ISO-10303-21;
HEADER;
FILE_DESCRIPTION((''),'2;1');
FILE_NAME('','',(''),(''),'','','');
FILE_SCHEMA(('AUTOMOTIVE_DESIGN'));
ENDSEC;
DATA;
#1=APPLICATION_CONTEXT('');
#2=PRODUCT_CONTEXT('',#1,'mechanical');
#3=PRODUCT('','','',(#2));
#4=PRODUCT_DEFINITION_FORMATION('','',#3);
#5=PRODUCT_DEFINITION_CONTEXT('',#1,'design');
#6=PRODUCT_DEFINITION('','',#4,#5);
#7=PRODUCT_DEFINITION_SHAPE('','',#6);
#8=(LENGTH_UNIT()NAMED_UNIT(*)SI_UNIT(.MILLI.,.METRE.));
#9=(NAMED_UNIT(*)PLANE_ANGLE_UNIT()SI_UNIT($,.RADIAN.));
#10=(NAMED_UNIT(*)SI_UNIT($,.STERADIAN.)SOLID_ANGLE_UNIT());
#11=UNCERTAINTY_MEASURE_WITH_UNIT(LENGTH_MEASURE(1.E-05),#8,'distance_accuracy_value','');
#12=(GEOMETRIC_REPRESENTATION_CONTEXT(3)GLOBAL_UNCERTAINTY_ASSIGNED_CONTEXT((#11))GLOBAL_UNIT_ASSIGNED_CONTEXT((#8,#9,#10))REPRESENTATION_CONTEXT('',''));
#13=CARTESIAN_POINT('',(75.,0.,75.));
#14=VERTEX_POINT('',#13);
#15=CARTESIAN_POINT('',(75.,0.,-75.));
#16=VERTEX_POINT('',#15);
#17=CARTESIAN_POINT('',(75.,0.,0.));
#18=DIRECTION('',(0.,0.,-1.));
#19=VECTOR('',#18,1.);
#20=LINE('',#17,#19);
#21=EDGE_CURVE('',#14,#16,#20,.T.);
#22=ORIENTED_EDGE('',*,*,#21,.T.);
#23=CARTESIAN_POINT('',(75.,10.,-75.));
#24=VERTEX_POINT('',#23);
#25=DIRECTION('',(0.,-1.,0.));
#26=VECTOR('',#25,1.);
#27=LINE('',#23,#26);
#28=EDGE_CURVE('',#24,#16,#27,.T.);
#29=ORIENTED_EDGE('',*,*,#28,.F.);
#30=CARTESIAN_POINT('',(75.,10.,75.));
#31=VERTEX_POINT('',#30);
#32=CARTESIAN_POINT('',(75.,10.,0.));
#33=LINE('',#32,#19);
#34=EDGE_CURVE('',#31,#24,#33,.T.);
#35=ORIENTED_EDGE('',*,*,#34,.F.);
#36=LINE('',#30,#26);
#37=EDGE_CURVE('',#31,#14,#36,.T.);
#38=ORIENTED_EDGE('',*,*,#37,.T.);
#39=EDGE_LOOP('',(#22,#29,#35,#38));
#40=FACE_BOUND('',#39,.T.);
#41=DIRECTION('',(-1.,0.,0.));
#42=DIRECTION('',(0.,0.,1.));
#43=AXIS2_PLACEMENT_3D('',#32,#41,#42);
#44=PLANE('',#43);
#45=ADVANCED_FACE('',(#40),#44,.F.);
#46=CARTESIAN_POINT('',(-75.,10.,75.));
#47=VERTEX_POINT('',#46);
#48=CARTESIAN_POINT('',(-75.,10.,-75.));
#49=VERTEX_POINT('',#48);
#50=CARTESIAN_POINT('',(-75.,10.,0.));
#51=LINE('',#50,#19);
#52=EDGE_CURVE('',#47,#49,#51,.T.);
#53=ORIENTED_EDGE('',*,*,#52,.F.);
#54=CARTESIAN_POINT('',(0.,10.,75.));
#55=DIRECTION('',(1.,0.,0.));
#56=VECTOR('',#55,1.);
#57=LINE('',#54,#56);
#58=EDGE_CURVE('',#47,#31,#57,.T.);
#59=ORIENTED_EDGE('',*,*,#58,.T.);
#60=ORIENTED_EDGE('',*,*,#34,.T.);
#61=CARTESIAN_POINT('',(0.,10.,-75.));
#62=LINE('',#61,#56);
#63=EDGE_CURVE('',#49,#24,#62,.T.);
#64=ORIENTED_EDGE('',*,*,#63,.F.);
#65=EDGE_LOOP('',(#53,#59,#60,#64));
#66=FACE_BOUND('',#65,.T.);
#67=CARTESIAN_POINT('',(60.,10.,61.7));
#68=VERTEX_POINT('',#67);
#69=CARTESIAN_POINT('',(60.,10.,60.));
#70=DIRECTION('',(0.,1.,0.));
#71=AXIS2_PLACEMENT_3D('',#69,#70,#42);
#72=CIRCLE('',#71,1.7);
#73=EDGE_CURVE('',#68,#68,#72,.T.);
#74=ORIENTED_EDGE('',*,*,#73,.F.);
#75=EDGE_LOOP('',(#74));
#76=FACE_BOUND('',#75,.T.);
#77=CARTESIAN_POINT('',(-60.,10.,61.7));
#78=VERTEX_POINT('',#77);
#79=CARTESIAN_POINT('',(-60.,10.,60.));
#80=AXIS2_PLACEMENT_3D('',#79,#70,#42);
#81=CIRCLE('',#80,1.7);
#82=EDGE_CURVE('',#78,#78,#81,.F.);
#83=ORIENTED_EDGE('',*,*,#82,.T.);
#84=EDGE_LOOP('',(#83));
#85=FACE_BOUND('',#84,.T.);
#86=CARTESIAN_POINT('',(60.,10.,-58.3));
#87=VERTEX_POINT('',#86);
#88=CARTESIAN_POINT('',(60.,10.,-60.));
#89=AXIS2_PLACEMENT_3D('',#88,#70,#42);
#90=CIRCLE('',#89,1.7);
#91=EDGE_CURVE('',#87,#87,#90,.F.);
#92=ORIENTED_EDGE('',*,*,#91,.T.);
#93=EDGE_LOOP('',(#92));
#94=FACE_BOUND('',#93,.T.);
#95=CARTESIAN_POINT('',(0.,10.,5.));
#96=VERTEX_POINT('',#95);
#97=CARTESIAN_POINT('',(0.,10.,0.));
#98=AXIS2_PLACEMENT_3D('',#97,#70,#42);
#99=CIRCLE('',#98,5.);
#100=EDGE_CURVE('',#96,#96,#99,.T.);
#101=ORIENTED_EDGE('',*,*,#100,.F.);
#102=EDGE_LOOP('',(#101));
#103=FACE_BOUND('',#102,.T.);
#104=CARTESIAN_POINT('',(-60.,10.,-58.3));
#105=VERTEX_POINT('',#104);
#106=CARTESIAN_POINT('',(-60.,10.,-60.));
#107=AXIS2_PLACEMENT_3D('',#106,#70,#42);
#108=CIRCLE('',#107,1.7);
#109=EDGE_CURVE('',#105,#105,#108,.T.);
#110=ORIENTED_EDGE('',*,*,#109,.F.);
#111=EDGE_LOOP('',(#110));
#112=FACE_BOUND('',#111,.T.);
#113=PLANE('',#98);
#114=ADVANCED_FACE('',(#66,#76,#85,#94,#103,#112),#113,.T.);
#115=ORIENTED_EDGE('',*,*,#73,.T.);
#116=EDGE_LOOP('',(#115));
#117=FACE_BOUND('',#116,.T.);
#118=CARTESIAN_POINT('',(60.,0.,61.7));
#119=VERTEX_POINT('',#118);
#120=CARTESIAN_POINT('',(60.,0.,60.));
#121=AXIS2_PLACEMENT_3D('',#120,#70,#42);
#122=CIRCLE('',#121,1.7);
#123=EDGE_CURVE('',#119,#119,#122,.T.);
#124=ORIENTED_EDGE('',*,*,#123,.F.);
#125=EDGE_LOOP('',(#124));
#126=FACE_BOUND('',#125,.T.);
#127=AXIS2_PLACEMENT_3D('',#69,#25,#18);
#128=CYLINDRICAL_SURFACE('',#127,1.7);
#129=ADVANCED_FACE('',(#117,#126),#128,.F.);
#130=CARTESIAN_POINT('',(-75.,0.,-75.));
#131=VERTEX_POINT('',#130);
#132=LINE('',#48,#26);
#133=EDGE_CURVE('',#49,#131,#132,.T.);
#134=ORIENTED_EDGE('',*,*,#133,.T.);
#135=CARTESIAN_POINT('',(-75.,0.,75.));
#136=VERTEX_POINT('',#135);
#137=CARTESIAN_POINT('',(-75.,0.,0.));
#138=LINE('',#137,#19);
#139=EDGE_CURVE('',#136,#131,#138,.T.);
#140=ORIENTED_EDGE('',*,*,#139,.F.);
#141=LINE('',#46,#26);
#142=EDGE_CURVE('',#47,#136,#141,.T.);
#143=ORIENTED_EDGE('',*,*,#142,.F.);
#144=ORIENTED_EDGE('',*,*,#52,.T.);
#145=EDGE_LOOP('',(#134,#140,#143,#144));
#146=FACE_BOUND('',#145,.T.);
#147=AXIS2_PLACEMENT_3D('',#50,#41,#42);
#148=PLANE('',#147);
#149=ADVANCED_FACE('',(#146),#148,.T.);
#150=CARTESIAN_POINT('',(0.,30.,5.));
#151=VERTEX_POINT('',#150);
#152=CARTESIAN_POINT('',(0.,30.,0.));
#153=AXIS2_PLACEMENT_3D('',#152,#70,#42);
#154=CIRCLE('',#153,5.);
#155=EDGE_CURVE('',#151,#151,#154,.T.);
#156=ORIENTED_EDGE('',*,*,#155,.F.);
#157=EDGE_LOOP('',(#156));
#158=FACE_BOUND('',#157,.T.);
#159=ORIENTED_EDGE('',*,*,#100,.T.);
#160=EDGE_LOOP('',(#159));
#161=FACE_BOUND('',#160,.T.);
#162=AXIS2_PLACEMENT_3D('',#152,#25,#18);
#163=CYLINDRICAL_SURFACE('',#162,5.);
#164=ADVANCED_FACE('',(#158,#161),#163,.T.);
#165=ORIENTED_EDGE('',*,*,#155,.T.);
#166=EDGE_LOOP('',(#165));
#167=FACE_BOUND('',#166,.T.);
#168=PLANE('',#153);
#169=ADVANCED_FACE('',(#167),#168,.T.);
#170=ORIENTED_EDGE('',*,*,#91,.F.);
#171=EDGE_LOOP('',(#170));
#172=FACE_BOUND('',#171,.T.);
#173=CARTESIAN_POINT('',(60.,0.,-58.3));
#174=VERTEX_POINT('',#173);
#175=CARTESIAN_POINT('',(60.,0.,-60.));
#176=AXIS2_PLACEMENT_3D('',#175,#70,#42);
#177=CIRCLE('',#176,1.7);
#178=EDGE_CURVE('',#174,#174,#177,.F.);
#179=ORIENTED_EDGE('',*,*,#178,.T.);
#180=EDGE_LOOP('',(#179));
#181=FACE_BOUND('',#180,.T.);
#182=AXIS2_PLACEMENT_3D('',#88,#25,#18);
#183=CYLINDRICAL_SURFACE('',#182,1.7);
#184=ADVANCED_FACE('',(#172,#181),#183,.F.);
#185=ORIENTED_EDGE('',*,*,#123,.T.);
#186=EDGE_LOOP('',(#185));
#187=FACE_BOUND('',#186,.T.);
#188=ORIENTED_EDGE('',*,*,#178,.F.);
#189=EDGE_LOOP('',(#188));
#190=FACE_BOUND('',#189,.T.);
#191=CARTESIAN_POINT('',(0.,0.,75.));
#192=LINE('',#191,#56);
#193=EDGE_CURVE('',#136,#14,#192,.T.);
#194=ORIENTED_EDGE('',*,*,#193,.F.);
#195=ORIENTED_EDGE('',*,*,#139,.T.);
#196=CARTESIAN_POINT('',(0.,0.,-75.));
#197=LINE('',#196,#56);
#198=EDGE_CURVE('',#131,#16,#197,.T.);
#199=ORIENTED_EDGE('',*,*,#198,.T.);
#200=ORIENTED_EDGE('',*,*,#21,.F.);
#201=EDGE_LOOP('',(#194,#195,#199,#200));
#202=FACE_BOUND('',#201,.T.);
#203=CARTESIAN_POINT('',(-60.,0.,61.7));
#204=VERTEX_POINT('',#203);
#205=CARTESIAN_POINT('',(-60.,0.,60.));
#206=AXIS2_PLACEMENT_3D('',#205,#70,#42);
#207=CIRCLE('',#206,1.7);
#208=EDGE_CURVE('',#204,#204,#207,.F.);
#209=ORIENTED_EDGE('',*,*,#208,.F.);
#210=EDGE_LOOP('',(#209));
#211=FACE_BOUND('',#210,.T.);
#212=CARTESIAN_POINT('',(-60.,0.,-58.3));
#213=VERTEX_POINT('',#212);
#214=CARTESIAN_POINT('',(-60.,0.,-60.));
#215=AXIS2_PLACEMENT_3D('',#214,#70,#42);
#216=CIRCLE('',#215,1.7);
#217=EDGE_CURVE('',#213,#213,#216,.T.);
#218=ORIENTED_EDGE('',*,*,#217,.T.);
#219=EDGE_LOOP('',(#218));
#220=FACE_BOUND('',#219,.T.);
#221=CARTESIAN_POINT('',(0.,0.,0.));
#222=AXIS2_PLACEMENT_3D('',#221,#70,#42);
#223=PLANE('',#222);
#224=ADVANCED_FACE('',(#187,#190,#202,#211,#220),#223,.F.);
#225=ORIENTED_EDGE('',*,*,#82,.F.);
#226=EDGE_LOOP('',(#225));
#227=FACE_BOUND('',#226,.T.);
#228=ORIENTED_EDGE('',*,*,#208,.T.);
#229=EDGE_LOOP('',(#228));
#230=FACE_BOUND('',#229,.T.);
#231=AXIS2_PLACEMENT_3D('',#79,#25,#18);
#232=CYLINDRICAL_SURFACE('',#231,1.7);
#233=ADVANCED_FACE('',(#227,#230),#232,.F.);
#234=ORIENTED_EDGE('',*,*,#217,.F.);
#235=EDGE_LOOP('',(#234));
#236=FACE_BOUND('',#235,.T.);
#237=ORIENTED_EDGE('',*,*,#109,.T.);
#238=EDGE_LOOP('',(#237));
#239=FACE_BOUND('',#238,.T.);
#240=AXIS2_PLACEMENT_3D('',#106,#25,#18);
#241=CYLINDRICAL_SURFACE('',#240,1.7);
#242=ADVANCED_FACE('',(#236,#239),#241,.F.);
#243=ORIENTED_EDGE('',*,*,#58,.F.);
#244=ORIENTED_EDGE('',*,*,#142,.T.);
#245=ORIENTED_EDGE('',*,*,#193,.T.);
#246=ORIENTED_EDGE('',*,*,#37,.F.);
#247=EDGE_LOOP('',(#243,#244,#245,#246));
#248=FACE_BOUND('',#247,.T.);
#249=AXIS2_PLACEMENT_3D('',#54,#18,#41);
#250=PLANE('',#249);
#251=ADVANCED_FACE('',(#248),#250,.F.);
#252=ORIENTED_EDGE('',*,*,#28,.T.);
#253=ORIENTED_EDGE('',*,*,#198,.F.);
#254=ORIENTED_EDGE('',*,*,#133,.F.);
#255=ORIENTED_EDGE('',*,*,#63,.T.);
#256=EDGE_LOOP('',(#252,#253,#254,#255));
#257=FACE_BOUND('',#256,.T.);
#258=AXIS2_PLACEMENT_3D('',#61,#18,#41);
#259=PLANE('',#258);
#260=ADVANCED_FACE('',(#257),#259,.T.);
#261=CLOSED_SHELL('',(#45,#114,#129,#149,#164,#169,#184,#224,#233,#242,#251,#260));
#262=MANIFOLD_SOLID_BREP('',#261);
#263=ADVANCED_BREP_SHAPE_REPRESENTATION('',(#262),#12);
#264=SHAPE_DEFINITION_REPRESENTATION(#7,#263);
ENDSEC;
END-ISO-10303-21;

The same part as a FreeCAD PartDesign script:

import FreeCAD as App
import Part
import Sketcher
from FreeCAD import Vector
Q = App.Units.Quantity


def add_polygon(sketch, points):
    """Adds a closed chain of lines whose ends are joined by coincident constraints."""
    first, n = sketch.GeometryCount, len(points)
    for a, b in zip(points, points[1:] + points[:1]):
        sketch.addGeometry(Part.LineSegment(App.Vector(*a, 0), App.Vector(*b, 0)), False)
    for i in range(n):
        sketch.addConstraint(Sketcher.Constraint("Coincident", first + i, 2, first + (i + 1) % n, 1))

doc = App.newDocument("Part")
body = doc.addObject("PartDesign::Body", "Body")

# Sketch on XZ plane
sketch1 = body.newObject("Sketcher::SketchObject", "Sketch")
sketch1.AttachmentSupport = (doc.getObject("XZ_Plane"), [""])
sketch1.MapMode = "FlatFace"
add_polygon(sketch1, [(-75, -75), (-75, 75), (75, 75), (75, -75)])  # lines 0-3
sketch1.addGeometry(Part.Circle(Vector(-60, 60, 0), Vector(0, 0, 1), 1.7), False)  # 4
sketch1.addGeometry(Part.Circle(Vector(60, 60, 0), Vector(0, 0, 1), 1.7), False)  # 5
sketch1.addGeometry(Part.Circle(Vector(-60, -60, 0), Vector(0, 0, 1), 1.7), False)  # 6
sketch1.addGeometry(Part.Circle(Vector(0, 0, 0), Vector(0, 0, 1), 5), False)  # 7
sketch1.addGeometry(Part.Circle(Vector(60, -60, 0), Vector(0, 0, 1), 1.7), False)  # 8
sketch1.addConstraint(Sketcher.Constraint("Vertical", 0))
sketch1.addConstraint(Sketcher.Constraint("Horizontal", 1))
sketch1.addConstraint(Sketcher.Constraint("Vertical", 2))
sketch1.addConstraint(Sketcher.Constraint("Horizontal", 3))
sketch1.addConstraint(Sketcher.Constraint("Coincident", 7, 3, -1, 1))
sketch1.addConstraint(Sketcher.Constraint("Equal", 4, 5))
sketch1.addConstraint(Sketcher.Constraint("Equal", 5, 6))
sketch1.addConstraint(Sketcher.Constraint("Equal", 6, 8))
sketch1.addConstraint(Sketcher.Constraint("Symmetric", 5, 3, 6, 3, -1, 1))
sketch1.addConstraint(Sketcher.Constraint("Symmetric", 4, 3, 8, 3, -1, 1))
sketch1.addConstraint(Sketcher.Constraint("Symmetric", 0, 2, 2, 2, -1, 1))
sketch1.addConstraint(Sketcher.Constraint("Symmetric", 4, 3, 5, 3, -2))
sketch1.addConstraint(Sketcher.Constraint("Equal", 3, 0))
sketch1.addConstraint(Sketcher.Constraint("Diameter", 7, Q("10 mm")))
sketch1.addConstraint(Sketcher.Constraint("Diameter", 4, Q("3.4 mm")))
sketch1.addConstraint(Sketcher.Constraint("DistanceX", 1, 1, 1, 2, Q("150 mm")))
sketch1.addConstraint(Sketcher.Constraint("DistanceX", 4, 3, -1, 1, Q("60 mm")))
sketch1.addConstraint(Sketcher.Constraint("DistanceY", -1, 1, 4, 3, Q("60 mm")))
pad1 = body.newObject("PartDesign::Pad", "Pad")
pad1.Profile = sketch1
pad1.Length = 10
pad1.Reversed = True

# Sketch on XZ plane
sketch2 = body.newObject("Sketcher::SketchObject", "Sketch001")
sketch2.AttachmentSupport = (doc.getObject("XZ_Plane"), [""])
sketch2.MapMode = "FlatFace"
sketch2.addGeometry(Part.Circle(Vector(0, 0, 0), Vector(0, 0, 1), 5), False)
sketch2.addConstraint(Sketcher.Constraint("Coincident", 0, 3, -1, 1))
sketch2.addConstraint(Sketcher.Constraint("Diameter", 0, Q("10 mm")))
pad2 = body.newObject("PartDesign::Pad", "Pad001")
pad2.Profile = sketch2
pad2.Length = 30
pad2.Reversed = True

doc.recompute()
